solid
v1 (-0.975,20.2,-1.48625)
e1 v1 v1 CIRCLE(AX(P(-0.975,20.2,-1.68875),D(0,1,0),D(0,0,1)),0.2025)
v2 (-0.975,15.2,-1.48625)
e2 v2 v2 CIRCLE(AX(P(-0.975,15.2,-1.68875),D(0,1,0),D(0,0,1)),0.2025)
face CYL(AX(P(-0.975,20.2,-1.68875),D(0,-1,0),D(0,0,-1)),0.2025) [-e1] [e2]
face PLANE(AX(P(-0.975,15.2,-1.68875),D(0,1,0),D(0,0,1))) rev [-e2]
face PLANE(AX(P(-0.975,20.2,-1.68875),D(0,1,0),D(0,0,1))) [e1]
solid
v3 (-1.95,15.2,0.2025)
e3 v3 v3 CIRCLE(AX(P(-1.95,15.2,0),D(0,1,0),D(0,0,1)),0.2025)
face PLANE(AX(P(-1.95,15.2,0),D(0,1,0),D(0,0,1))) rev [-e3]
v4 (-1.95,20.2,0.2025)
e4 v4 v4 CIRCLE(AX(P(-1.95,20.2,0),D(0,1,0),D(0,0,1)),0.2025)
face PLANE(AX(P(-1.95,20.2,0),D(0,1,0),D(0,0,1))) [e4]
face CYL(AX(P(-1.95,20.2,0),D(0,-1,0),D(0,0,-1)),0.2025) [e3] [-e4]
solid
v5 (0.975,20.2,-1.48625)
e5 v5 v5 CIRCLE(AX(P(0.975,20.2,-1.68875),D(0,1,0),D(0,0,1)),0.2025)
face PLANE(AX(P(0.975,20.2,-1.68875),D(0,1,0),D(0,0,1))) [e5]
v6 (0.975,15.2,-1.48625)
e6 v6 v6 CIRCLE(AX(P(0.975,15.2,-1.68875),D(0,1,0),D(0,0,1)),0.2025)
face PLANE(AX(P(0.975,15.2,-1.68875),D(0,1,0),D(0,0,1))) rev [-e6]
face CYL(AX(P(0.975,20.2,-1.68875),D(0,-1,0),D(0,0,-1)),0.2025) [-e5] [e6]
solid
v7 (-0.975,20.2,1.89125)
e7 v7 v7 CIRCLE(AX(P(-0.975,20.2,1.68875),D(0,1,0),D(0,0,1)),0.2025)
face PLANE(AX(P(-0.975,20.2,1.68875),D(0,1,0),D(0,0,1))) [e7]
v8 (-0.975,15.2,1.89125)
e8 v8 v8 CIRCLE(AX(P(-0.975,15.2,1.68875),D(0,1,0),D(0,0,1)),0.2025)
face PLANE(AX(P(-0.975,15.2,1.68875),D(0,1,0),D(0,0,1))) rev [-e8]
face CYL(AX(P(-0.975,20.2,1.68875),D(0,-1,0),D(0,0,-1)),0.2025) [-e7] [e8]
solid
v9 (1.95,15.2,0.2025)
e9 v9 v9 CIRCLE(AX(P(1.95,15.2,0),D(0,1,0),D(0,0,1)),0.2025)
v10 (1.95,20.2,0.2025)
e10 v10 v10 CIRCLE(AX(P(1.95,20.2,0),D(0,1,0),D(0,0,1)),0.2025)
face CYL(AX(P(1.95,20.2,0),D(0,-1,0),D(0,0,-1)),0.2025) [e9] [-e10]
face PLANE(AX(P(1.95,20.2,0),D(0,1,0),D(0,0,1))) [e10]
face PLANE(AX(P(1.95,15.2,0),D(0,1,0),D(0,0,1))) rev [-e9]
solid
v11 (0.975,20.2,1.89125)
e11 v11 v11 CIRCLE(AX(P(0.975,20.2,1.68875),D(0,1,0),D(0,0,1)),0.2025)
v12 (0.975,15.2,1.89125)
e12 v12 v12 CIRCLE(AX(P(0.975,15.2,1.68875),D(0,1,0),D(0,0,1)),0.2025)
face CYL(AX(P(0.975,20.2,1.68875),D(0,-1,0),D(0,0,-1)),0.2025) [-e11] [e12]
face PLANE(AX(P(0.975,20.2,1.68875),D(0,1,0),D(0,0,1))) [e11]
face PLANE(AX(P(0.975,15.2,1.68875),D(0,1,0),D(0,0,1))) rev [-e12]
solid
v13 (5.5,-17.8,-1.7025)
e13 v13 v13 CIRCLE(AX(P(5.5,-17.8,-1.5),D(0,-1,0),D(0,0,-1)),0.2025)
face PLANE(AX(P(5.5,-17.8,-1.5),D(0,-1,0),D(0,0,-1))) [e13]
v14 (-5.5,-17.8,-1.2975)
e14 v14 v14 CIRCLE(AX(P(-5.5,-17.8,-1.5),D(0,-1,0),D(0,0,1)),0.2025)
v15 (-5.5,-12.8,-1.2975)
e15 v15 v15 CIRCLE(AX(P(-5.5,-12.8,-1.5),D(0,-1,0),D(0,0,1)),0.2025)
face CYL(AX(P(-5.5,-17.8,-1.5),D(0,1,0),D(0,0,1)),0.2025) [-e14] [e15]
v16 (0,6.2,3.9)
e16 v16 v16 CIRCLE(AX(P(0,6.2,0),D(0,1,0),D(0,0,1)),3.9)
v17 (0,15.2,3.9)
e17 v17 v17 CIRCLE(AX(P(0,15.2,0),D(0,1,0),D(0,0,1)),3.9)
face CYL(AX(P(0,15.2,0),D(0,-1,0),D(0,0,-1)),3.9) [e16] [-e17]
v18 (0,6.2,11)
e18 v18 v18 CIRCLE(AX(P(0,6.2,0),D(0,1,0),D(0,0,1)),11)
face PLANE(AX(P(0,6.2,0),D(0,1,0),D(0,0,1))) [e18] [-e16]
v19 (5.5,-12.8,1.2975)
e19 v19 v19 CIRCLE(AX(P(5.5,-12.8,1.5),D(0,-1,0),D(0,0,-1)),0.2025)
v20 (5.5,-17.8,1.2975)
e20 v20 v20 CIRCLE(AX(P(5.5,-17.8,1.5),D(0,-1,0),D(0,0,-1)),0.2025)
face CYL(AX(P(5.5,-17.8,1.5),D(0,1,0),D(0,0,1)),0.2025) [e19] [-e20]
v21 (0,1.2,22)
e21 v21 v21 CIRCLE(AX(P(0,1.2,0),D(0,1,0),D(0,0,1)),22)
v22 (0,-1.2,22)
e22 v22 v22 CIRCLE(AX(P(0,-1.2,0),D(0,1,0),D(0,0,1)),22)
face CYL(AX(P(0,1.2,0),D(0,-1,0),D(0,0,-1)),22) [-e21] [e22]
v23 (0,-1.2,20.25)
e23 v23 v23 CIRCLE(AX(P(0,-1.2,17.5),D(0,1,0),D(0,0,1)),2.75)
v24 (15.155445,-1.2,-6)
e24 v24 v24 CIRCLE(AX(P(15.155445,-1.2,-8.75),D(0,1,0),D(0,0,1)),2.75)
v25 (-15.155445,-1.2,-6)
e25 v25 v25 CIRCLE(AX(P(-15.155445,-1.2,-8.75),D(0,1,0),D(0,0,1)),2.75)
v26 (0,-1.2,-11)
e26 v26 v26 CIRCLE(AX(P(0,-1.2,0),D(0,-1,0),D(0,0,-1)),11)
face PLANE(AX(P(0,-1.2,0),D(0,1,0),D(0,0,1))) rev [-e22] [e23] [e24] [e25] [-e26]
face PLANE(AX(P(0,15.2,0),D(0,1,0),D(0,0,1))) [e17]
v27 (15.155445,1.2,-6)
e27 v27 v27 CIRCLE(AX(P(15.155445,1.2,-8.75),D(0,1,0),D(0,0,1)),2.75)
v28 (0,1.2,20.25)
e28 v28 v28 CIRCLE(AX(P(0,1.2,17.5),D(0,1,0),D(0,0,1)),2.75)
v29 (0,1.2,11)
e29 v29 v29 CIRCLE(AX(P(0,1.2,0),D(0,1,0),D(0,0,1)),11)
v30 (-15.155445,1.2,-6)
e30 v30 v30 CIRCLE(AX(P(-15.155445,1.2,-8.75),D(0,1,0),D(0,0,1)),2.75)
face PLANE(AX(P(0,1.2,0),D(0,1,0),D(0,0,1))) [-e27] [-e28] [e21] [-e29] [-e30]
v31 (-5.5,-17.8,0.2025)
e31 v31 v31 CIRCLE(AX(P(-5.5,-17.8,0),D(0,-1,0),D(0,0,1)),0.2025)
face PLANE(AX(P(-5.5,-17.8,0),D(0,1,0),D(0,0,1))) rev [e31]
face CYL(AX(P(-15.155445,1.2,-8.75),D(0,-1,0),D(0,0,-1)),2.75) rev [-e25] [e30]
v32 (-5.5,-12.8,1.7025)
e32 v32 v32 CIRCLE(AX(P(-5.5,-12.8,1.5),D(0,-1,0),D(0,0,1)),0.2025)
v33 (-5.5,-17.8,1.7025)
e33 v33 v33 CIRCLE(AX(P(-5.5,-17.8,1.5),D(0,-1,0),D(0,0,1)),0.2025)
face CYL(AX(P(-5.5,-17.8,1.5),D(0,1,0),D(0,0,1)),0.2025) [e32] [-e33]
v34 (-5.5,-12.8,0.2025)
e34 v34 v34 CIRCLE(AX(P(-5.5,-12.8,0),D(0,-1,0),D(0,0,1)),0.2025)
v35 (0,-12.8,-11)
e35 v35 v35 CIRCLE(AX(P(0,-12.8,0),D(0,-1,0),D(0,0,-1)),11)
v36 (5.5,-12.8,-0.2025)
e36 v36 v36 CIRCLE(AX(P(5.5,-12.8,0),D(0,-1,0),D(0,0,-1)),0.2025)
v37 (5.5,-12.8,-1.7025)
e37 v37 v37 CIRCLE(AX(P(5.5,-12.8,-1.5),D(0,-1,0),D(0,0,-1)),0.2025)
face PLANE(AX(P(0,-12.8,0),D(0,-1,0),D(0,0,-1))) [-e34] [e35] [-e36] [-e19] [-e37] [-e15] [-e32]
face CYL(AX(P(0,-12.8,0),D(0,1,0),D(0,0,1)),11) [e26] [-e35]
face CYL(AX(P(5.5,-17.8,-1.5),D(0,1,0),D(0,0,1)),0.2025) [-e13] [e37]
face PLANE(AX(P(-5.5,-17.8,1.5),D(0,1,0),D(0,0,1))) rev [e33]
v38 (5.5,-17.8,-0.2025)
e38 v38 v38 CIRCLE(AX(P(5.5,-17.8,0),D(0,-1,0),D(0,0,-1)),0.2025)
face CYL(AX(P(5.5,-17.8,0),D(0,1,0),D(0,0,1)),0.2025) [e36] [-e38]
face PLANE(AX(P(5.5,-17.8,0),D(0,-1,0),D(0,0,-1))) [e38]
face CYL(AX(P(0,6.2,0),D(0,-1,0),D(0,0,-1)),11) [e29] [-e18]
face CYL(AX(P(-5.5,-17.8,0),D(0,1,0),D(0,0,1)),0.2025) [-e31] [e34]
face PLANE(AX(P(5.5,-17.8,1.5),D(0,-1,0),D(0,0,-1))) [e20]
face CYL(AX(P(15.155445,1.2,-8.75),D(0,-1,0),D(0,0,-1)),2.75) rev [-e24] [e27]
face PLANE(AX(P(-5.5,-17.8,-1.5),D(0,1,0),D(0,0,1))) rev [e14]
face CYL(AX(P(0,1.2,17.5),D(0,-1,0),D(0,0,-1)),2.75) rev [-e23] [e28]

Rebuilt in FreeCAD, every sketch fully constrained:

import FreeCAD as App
import Part
import Sketcher

V = App.Vector
Q = App.Units.Quantity

doc = App.newDocument("Part")
body = doc.addObject("PartDesign::Body", "Body")

sketch1 = doc.addObject("Sketcher::SketchObject", "Sketch")
body.addObject(sketch1)
sketch1.AttachmentSupport = (doc.XZ_Plane, [""])
sketch1.MapMode = "FlatFace"
sketch1.addGeometry(Part.Circle(V(0, 0, 0), V(0, 0, 1), 22), False)
sketch1.addGeometry(Part.Circle(V(-15.2, -8.8, 0), V(0, 0, 1), 2.8), False)
sketch1.addGeometry(Part.Circle(V(15.2, -8.8, 0), V(0, 0, 1), 2.8), False)
sketch1.addGeometry(Part.Circle(V(0, 17.5, 0), V(0, 0, 1), 2.8), False)
sketch1.addConstraint(Sketcher.Constraint("Coincident", 0, 3, -1, 1))
sketch1.addConstraint(Sketcher.Constraint("Equal", 1, 2))
sketch1.addConstraint(Sketcher.Constraint("Equal", 2, 3))
sketch1.addConstraint(Sketcher.Constraint("Symmetric", 1, 3, 2, 3, -2))
sketch1.addConstraint(Sketcher.Constraint("PointOnObject", 3, 3, -2))
sketch1.addConstraint(Sketcher.Constraint("Diameter", 0, Q("44 mm")))
sketch1.addConstraint(Sketcher.Constraint("Diameter", 1, Q("5.5 mm")))
sketch1.addConstraint(Sketcher.Constraint("DistanceY", -1, 1, 3, 3, Q("17.5 mm")))
sketch1.addConstraint(Sketcher.Constraint("DistanceY", 1, 3, -1, 1, Q("8.75 mm")))
sketch1.addConstraint(Sketcher.Constraint("DistanceX", 1, 3, 2, 3, Q("30.310889 mm")))
pad1 = doc.addObject("PartDesign::Pad", "Pad")
body.addObject(pad1)
pad1.Profile = sketch1
pad1.Length = 2.4
pad1.Midplane = True

sketch2 = doc.addObject("Sketcher::SketchObject", "Sketch001")
body.addObject(sketch2)
sketch2.AttachmentSupport = (doc.XZ_Plane, [""])
sketch2.MapMode = "FlatFace"
sketch2.AttachmentOffset = App.Placement(V(0, 0, -1.2), App.Rotation())
sketch2.addGeometry(Part.Circle(V(0, 0, 0), V(0, 0, 1), 11), False)
sketch2.addConstraint(Sketcher.Constraint("Coincident", 0, 3, -1, 1))
sketch2.addConstraint(Sketcher.Constraint("Diameter", 0, Q("22 mm")))
pad2 = doc.addObject("PartDesign::Pad", "Pad001")
body.addObject(pad2)
pad2.Profile = sketch2
pad2.Length = 5
pad2.Reversed = True

sketch3 = doc.addObject("Sketcher::SketchObject", "Sketch002")
body.addObject(sketch3)
sketch3.AttachmentSupport = (doc.XZ_Plane, [""])
sketch3.MapMode = "FlatFace"
sketch3.AttachmentOffset = App.Placement(V(0, 0, -6.2), App.Rotation())
sketch3.addGeometry(Part.Circle(V(0, 0, 0), V(0, 0, 1), 3.9), False)
sketch3.addConstraint(Sketcher.Constraint("Coincident", 0, 3, -1, 1))
sketch3.addConstraint(Sketcher.Constraint("Diameter", 0, Q("7.8 mm")))
pad3 = doc.addObject("PartDesign::Pad", "Pad002")
body.addObject(pad3)
pad3.Profile = sketch3
pad3.Length = 9
pad3.Reversed = True

sketch4 = doc.addObject("Sketcher::SketchObject", "Sketch003")
body.addObject(sketch4)
sketch4.AttachmentSupport = (doc.XZ_Plane, [""])
sketch4.MapMode = "FlatFace"
sketch4.AttachmentOffset = App.Placement(V(0, 0, 12.8), App.Rotation())
sketch4.addGeometry(Part.Circle(V(0, 0, 0), V(0, 0, 1), 11), False)
sketch4.addConstraint(Sketcher.Constraint("Coincident", 0, 3, -1, 1))
sketch4.addConstraint(Sketcher.Constraint("Diameter", 0, Q("22 mm")))
pad4 = doc.addObject("PartDesign::Pad", "Pad003")
body.addObject(pad4)
pad4.Profile = sketch4
pad4.Length = 11.6
pad4.Reversed = True

sketch5 = doc.addObject("Sketcher::SketchObject", "Sketch004")
body.addObject(sketch5)
sketch5.AttachmentSupport = (doc.XZ_Plane, [""])
sketch5.MapMode = "FlatFace"
sketch5.AttachmentOffset = App.Placement(V(0, 0, 12.8), App.Rotation())
sketch5.addGeometry(Part.Circle(V(5.5, 0, 0), V(0, 0, 1), 0.2), False)
sketch5.addGeometry(Part.Circle(V(5.5, 1.5, 0), V(0, 0, 1), 0.2), False)
sketch5.addGeometry(Part.Circle(V(5.5, -1.5, 0), V(0, 0, 1), 0.2), False)
sketch5.addGeometry(Part.Circle(V(-5.5, -1.5, 0), V(0, 0, 1), 0.2), False)
sketch5.addGeometry(Part.Circle(V(-5.5, 0, 0), V(0, 0, 1), 0.2), False)
sketch5.addGeometry(Part.Circle(V(-5.5, 1.5, 0), V(0, 0, 1), 0.2), False)
sketch5.addConstraint(Sketcher.Constraint("Equal", 0, 1))
sketch5.addConstraint(Sketcher.Constraint("Equal", 1, 2))
sketch5.addConstraint(Sketcher.Constraint("Equal", 2, 3))
sketch5.addConstraint(Sketcher.Constraint("Equal", 3, 4))
sketch5.addConstraint(Sketcher.Constraint("Equal", 4, 5))
sketch5.addConstraint(Sketcher.Constraint("Symmetric", 1, 3, 3, 3, -1, 1))
sketch5.addConstraint(Sketcher.Constraint("Symmetric", 0, 3, 4, 3, -1, 1))
sketch5.addConstraint(Sketcher.Constraint("Symmetric", 2, 3, 5, 3, -1, 1))
sketch5.addConstraint(Sketcher.Constraint("Symmetric", 2, 3, 3, 3, -2))
sketch5.addConstraint(Sketcher.Constraint("PointOnObject", 0, 3, -1))
sketch5.addConstraint(Sketcher.Constraint("Vertical", 0, 3, 1, 3))
sketch5.addConstraint(Sketcher.Constraint("Diameter", 0, Q("0.405 mm")))
sketch5.addConstraint(Sketcher.Constraint("DistanceY", 2, 3, 1, 3, Q("3 mm")))
sketch5.addConstraint(Sketcher.Constraint("DistanceX", 3, 3, 2, 3, Q("11 mm")))
pad5 = doc.addObject("PartDesign::Pad", "Pad004")
body.addObject(pad5)
pad5.Profile = sketch5
pad5.Length = 5
body2 = doc.addObject("PartDesign::Body", "Body001")

sketch6 = doc.addObject("Sketcher::SketchObject", "Sketch005")
body2.addObject(sketch6)
sketch6.AttachmentSupport = (doc.getObject("XZ_Plane001"), [""])
sketch6.MapMode = "FlatFace"
sketch6.AttachmentOffset = App.Placement(V(0, 0, -15.2), App.Rotation())
sketch6.addGeometry(Part.Circle(V(1.95, 0, 0), V(0, 0, 1), 0.2), False)
sketch6.addConstraint(Sketcher.Constraint("PointOnObject", 0, 3, -1))
sketch6.addConstraint(Sketcher.Constraint("Diameter", 0, Q("0.405 mm")))
sketch6.addConstraint(Sketcher.Constraint("DistanceX", -1, 1, 0, 3, Q("1.95 mm")))
pad6 = doc.addObject("PartDesign::Pad", "Pad005")
body2.addObject(pad6)
pad6.Profile = sketch6
pad6.Length = 5
pad6.Reversed = True
body3 = doc.addObject("PartDesign::Body", "Body002")

sketch7 = doc.addObject("Sketcher::SketchObject", "Sketch006")
body3.addObject(sketch7)
sketch7.AttachmentSupport = (doc.getObject("XZ_Plane002"), [""])
sketch7.MapMode = "FlatFace"
sketch7.AttachmentOffset = App.Placement(V(0, 0, -15.2), App.Rotation())
sketch7.addGeometry(Part.Circle(V(0.97, 1.69, 0), V(0, 0, 1), 0.2), False)
sketch7.addConstraint(Sketcher.Constraint("Diameter", 0, Q("0.405 mm")))
sketch7.addConstraint(Sketcher.Constraint("DistanceX", -1, 1, 0, 3, Q("0.975 mm")))
sketch7.addConstraint(Sketcher.Constraint("DistanceY", -1, 1, 0, 3, Q("1.68875 mm")))
pad7 = doc.addObject("PartDesign::Pad", "Pad006")
body3.addObject(pad7)
pad7.Profile = sketch7
pad7.Length = 5
pad7.Reversed = True
body4 = doc.addObject("PartDesign::Body", "Body003")

sketch8 = doc.addObject("Sketcher::SketchObject", "Sketch007")
body4.addObject(sketch8)
sketch8.AttachmentSupport = (doc.getObject("XZ_Plane003"), [""])
sketch8.MapMode = "FlatFace"
sketch8.AttachmentOffset = App.Placement(V(0, 0, -15.2), App.Rotation())
sketch8.addGeometry(Part.Circle(V(-0.97, 1.69, 0), V(0, 0, 1), 0.2), False)
sketch8.addConstraint(Sketcher.Constraint("Diameter", 0, Q("0.405 mm")))
sketch8.addConstraint(Sketcher.Constraint("DistanceX", 0, 3, -1, 1, Q("0.975 mm")))
sketch8.addConstraint(Sketcher.Constraint("DistanceY", -1, 1, 0, 3, Q("1.68875 mm")))
pad8 = doc.addObject("PartDesign::Pad", "Pad007")
body4.addObject(pad8)
pad8.Profile = sketch8
pad8.Length = 5
pad8.Reversed = True
body5 = doc.addObject("PartDesign::Body", "Body004")

sketch9 = doc.addObject("Sketcher::SketchObject", "Sketch008")
body5.addObject(sketch9)
sketch9.AttachmentSupport = (doc.getObject("XZ_Plane004"), [""])
sketch9.MapMode = "FlatFace"
sketch9.AttachmentOffset = App.Placement(V(0, 0, -15.2), App.Rotation())
sketch9.addGeometry(Part.Circle(V(-1.95, 0, 0), V(0, 0, 1), 0.2), False)
sketch9.addConstraint(Sketcher.Constraint("PointOnObject", 0, 3, -1))
sketch9.addConstraint(Sketcher.Constraint("Diameter", 0, Q("0.405 mm")))
sketch9.addConstraint(Sketcher.Constraint("DistanceX", 0, 3, -1, 1, Q("1.95 mm")))
pad9 = doc.addObject("PartDesign::Pad", "Pad008")
body5.addObject(pad9)
pad9.Profile = sketch9
pad9.Length = 5
pad9.Reversed = True
body6 = doc.addObject("PartDesign::Body", "Body005")

sketch10 = doc.addObject("Sketcher::SketchObject", "Sketch009")
body6.addObject(sketch10)
sketch10.AttachmentSupport = (doc.getObject("XZ_Plane005"), [""])
sketch10.MapMode = "FlatFace"
sketch10.AttachmentOffset = App.Placement(V(0, 0, -15.2), App.Rotation())
sketch10.addGeometry(Part.Circle(V(-0.97, -1.69, 0), V(0, 0, 1), 0.2), False)
sketch10.addConstraint(Sketcher.Constraint("Diameter", 0, Q("0.405 mm")))
sketch10.addConstraint(Sketcher.Constraint("DistanceX", 0, 3, -1, 1, Q("0.975 mm")))
sketch10.addConstraint(Sketcher.Constraint("DistanceY", 0, 3, -1, 1, Q("1.68875 mm")))
pad10 = doc.addObject("PartDesign::Pad", "Pad009")
body6.addObject(pad10)
pad10.Profile = sketch10
pad10.Length = 5
pad10.Reversed = True
body7 = doc.addObject("PartDesign::Body", "Body006")

sketch11 = doc.addObject("Sketcher::SketchObject", "Sketch010")
body7.addObject(sketch11)
sketch11.AttachmentSupport = (doc.getObject("XZ_Plane006"), [""])
sketch11.MapMode = "FlatFace"
sketch11.AttachmentOffset = App.Placement(V(0, 0, -15.2), App.Rotation())
sketch11.addGeometry(Part.Circle(V(0.97, -1.69, 0), V(0, 0, 1), 0.2), False)
sketch11.addConstraint(Sketcher.Constraint("Diameter", 0, Q("0.405 mm")))
sketch11.addConstraint(Sketcher.Constraint("DistanceX", -1, 1, 0, 3, Q("0.975 mm")))
sketch11.addConstraint(Sketcher.Constraint("DistanceY", 0, 3, -1, 1, Q("1.68875 mm")))
pad11 = doc.addObject("PartDesign::Pad", "Pad010")
body7.addObject(pad11)
pad11.Profile = sketch11
pad11.Length = 5
pad11.Reversed = True

doc.recompute()
